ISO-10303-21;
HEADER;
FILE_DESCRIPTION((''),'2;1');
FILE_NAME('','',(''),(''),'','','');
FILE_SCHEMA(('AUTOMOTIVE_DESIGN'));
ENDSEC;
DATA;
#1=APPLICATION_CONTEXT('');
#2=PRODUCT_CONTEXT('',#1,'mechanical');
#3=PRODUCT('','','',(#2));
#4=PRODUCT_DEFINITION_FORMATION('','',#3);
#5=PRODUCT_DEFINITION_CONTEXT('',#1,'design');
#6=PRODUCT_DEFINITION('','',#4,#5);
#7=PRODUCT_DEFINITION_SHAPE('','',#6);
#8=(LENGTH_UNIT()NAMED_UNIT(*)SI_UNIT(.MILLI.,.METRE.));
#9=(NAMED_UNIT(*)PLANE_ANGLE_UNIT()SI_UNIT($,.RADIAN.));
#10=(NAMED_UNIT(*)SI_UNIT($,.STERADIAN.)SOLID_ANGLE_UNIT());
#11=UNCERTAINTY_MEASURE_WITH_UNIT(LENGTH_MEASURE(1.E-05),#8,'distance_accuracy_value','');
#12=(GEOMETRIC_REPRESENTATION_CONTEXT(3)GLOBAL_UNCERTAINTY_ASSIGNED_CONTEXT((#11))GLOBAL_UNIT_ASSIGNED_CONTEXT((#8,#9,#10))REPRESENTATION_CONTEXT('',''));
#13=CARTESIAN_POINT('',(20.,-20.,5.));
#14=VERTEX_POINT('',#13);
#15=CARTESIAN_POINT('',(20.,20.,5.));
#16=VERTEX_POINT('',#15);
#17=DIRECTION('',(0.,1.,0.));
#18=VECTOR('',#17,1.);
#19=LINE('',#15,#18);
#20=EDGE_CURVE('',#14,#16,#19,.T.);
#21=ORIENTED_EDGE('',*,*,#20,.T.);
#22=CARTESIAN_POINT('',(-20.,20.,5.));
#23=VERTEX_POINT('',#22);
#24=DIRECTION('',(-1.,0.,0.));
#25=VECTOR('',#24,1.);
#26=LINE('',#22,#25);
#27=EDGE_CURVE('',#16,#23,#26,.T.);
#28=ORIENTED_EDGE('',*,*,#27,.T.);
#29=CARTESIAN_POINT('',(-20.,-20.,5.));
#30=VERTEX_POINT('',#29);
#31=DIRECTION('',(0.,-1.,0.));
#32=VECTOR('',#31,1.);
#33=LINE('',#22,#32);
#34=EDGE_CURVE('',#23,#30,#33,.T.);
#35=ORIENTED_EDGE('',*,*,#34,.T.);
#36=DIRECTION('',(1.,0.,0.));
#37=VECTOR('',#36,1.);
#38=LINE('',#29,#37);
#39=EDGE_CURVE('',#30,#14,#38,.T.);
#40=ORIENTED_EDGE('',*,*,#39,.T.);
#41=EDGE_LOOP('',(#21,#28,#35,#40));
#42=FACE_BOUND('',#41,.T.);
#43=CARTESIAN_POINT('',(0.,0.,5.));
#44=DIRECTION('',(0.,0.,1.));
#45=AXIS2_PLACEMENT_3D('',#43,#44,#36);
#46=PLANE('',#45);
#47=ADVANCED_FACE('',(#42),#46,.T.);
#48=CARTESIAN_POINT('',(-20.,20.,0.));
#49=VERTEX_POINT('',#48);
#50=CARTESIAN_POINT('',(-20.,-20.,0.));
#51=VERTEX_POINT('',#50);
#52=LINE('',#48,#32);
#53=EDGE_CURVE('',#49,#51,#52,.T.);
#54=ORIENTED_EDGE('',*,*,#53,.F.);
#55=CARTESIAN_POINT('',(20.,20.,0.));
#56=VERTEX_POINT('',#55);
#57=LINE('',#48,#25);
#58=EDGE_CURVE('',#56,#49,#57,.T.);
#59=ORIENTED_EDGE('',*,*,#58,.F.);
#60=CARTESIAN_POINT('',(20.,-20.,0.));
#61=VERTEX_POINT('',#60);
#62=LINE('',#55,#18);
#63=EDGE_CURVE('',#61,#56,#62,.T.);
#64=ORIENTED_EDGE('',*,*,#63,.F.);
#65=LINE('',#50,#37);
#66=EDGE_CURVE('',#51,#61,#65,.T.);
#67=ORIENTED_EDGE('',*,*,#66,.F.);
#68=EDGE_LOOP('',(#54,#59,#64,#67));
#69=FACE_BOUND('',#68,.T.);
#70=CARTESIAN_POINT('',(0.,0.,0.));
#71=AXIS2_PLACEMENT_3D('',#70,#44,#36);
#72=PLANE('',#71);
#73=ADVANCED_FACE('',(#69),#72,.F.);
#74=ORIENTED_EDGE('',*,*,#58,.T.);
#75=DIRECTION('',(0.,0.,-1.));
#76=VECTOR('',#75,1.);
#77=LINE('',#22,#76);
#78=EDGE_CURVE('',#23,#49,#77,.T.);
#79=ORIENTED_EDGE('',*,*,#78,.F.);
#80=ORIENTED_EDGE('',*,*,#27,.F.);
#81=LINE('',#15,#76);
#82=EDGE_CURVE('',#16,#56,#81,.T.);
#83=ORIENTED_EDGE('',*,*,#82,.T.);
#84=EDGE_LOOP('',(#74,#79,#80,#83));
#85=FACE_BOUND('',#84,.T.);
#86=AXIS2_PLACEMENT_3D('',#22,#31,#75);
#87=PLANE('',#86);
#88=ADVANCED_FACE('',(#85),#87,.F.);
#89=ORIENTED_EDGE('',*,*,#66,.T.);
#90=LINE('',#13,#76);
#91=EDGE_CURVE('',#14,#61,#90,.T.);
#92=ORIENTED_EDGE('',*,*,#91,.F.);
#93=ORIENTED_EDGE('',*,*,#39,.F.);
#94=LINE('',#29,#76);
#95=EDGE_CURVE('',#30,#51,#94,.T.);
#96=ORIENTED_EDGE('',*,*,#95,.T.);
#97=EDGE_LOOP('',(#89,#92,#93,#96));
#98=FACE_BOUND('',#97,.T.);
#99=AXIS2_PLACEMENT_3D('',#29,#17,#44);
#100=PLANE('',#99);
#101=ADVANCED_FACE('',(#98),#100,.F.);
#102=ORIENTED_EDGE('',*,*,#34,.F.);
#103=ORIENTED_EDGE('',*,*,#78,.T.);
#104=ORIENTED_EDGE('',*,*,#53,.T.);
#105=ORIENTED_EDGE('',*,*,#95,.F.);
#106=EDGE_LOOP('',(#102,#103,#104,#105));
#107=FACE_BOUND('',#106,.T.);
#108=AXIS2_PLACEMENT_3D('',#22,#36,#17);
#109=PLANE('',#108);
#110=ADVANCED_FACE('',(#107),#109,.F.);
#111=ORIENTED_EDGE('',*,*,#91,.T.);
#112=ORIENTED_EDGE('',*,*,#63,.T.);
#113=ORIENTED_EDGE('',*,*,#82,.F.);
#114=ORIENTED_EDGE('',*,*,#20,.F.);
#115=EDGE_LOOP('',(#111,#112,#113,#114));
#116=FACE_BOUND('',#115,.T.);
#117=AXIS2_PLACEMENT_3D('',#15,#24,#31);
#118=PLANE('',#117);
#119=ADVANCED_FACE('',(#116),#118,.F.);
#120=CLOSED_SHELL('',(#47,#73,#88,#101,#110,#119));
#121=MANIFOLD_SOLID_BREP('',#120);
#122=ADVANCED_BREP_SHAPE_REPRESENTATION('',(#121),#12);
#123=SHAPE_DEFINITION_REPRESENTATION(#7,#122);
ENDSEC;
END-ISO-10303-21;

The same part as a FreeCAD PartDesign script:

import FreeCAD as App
import Part
import Sketcher

V = App.Vector
Q = App.Units.Quantity


def add_polygon(sketch, points):
    """Adds a closed chain of lines whose ends are joined by coincident constraints."""
    first, n = sketch.GeometryCount, len(points)
    for a, b in zip(points, points[1:] + points[:1]):
        sketch.addGeometry(Part.LineSegment(App.Vector(*a, 0), App.Vector(*b, 0)), False)
    for i in range(n):
        sketch.addConstraint(Sketcher.Constraint("Coincident", first + i, 2, first + (i + 1) % n, 1))

doc = App.newDocument("Part")
body = doc.addObject("PartDesign::Body", "Body")

sketch1 = body.newObject("Sketcher::SketchObject", "Sketch")
sketch1.AttachmentSupport = (doc.getObject("XY_Plane"), [""])
sketch1.MapMode = "FlatFace"
add_polygon(sketch1, [(-20, 20), (-20, -20), (20, -20), (20, 20)])
sketch1.addConstraint([
    Sketcher.Constraint("Vertical", 0),
    Sketcher.Constraint("Horizontal", 1),
    Sketcher.Constraint("Vertical", 2),
    Sketcher.Constraint("Horizontal", 3),
    Sketcher.Constraint("Symmetric", 0, 2, 2, 2, -1, 1),
    Sketcher.Constraint("Equal", 3, 0),
    Sketcher.Constraint("DistanceX", 1, 1, 1, 2, Q("40 mm")),
])
pad1 = body.newObject("PartDesign::Pad", "Pad")
pad1.Profile = sketch1
pad1.Length = 5

doc.recompute()
